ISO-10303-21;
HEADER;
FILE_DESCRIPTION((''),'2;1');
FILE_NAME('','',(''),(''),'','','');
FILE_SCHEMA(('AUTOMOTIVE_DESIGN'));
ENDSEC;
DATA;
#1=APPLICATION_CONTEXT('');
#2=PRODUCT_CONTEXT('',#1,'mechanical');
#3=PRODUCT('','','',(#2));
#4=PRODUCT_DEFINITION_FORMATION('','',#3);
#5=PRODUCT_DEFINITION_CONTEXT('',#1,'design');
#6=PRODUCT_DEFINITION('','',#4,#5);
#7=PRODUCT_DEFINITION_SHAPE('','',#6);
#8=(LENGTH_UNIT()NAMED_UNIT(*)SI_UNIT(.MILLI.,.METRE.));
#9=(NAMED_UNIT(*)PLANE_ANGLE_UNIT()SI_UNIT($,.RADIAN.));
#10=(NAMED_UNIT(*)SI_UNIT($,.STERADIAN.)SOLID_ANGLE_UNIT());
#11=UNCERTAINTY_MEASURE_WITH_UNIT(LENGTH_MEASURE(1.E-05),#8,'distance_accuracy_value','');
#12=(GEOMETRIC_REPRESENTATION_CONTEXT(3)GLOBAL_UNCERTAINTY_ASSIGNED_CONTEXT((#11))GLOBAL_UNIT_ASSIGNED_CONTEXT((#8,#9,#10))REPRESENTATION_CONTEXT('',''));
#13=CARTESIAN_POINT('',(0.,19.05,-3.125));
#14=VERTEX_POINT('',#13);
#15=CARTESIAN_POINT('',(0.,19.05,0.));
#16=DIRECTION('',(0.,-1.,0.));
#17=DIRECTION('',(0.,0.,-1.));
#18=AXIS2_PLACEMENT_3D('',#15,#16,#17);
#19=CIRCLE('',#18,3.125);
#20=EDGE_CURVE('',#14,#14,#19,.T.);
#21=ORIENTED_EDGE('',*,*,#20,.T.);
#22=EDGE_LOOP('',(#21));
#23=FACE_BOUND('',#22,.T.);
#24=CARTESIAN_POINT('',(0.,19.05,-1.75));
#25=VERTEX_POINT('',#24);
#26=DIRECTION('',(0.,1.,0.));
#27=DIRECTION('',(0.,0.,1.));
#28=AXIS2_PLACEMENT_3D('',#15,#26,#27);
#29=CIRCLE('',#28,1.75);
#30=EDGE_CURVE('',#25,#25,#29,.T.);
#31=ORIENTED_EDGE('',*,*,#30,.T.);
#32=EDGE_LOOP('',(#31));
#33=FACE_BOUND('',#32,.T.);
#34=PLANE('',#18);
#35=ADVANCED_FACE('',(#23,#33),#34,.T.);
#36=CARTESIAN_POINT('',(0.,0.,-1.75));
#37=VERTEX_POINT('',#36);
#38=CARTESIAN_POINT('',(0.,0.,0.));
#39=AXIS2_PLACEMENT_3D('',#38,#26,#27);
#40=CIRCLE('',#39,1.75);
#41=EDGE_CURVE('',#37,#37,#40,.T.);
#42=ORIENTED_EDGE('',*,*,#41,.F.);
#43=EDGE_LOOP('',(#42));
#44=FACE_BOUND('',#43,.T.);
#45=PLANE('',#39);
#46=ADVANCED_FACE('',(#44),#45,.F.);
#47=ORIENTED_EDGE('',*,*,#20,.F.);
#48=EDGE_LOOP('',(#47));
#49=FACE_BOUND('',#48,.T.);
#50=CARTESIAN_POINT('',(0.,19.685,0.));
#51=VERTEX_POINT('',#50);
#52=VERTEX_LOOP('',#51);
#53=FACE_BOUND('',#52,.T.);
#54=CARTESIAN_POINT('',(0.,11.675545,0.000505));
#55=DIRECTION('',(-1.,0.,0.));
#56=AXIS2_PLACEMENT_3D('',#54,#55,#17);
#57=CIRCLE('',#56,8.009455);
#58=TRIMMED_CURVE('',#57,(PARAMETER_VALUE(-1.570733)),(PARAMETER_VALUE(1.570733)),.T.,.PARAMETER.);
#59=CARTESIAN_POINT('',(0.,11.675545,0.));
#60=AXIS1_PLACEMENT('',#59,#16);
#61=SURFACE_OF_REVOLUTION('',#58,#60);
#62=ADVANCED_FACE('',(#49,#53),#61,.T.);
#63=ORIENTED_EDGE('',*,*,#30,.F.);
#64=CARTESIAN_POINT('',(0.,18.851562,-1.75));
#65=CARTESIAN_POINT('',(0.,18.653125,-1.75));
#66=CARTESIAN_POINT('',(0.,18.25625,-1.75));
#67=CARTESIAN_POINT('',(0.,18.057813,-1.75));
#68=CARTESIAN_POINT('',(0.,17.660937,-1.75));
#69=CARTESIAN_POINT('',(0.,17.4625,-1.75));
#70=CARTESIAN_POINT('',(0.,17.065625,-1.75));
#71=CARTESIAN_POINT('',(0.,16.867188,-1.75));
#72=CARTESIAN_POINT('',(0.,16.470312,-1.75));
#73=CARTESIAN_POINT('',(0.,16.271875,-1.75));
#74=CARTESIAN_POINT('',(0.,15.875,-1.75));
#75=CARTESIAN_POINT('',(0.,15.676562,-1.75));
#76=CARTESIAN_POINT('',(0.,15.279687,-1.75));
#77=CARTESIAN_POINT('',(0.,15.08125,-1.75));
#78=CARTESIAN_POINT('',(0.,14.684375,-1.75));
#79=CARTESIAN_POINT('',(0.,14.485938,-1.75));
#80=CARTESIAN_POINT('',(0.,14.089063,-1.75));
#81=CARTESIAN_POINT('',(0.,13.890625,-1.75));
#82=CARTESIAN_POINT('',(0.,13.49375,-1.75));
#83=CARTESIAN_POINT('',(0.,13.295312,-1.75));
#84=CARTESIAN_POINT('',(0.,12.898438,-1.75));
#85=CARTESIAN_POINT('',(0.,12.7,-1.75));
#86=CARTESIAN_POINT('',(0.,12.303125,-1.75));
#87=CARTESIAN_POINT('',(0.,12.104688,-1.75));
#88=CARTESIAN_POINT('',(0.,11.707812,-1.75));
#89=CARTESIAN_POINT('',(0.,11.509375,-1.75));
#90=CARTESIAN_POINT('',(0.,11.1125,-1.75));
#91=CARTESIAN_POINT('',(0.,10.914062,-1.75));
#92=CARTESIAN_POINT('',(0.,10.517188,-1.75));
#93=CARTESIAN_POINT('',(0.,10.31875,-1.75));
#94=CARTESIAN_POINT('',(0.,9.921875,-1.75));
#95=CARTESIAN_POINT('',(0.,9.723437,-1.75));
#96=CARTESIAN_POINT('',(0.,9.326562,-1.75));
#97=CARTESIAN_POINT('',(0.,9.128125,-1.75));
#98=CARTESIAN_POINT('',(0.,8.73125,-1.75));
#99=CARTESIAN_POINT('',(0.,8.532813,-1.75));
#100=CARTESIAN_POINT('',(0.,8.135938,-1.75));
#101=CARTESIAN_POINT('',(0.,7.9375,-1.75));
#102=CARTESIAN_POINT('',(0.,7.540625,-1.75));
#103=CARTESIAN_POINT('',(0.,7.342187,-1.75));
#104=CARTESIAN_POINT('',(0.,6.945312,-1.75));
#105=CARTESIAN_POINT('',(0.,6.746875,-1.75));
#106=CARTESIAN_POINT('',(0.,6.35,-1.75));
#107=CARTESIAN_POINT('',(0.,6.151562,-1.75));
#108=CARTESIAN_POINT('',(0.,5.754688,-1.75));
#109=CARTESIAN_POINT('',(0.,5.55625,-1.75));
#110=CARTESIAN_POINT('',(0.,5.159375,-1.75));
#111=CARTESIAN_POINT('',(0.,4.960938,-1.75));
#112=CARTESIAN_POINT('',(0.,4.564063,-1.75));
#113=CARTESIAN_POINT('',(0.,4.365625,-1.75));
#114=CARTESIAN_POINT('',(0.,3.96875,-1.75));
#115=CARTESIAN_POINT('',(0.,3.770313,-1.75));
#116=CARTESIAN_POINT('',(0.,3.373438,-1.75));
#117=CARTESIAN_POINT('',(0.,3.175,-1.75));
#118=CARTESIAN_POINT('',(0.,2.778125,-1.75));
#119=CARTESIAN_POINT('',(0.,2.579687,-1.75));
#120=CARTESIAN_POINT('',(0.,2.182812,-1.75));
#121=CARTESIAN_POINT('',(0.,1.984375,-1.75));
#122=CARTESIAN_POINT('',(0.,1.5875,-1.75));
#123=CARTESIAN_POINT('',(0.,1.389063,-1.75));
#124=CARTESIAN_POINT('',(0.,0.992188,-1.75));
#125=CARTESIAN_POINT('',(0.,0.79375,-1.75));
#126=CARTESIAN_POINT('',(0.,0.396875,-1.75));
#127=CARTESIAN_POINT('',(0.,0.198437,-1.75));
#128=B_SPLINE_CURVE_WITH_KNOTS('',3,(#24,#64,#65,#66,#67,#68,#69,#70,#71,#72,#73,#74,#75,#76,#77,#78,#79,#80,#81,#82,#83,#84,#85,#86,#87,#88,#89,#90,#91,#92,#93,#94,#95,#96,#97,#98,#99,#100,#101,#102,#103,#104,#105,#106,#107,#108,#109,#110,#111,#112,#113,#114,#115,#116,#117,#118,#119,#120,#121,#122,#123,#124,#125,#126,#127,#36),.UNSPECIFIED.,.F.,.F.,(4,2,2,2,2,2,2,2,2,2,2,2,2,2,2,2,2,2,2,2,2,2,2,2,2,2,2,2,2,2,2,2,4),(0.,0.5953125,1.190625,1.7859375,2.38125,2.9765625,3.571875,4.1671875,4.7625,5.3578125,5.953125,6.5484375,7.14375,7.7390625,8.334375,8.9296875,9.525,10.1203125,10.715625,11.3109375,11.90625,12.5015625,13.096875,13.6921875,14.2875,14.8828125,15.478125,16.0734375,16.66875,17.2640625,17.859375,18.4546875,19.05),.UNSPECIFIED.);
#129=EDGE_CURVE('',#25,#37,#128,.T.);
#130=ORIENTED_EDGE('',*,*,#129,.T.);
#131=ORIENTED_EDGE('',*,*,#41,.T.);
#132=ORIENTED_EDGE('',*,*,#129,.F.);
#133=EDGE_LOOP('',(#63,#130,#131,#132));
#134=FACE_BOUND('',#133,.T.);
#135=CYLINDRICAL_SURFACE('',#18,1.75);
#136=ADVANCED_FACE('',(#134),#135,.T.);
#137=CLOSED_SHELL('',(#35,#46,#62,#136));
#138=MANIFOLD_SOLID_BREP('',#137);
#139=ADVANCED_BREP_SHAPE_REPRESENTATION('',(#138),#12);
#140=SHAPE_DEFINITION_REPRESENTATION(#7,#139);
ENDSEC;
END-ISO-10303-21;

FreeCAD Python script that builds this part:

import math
import FreeCAD as App
import Part
import Sketcher

V = App.Vector
Q = App.Units.Quantity

doc = App.newDocument("Part")
body = doc.addObject("PartDesign::Body", "Body")

sketch1 = body.newObject("Sketcher::SketchObject", "Sketch")
sketch1.AttachmentSupport = (doc.getObject("XZ_Plane"), [""])
sketch1.MapMode = "FlatFace"
sketch1.addGeometry(Part.Circle(V(0, 0, 0), V(0, 0, 1), 1.8), False)
sketch1.addConstraint(Sketcher.Constraint("Coincident", 0, 3, -1, 1))
sketch1.addConstraint(Sketcher.Constraint("Diameter", 0, Q("3.5 mm")))
pad1 = body.newObject("PartDesign::Pad", "Pad")
pad1.Profile = sketch1
pad1.Length = Q("0.75 in")
pad1.Reversed = True

sketch2 = body.newObject("Sketcher::SketchObject", "Sketch001")
sketch2.AttachmentSupport = (doc.getObject("XY_Plane"), [""])
sketch2.MapMode = "FlatFace"
sketch2.addGeometry(Part.LineSegment(V(0, 19.7, 0), V(0, 19.1, 0)), False)
sketch2.addGeometry(Part.LineSegment(V(0, 19.1, 0), V(3.1, 19.1, 0)), False)
sketch2.addGeometry(Part.ArcOfCircle(Part.Circle(V(0, 11.7, 0), V(0, 0, 1), 8), math.radians(67), math.radians(90)), False)
sketch2.addConstraint(Sketcher.Constraint("Coincident", 0, 2, 1, 1))
sketch2.addConstraint(Sketcher.Constraint("Coincident", 1, 2, 2, 1))
sketch2.addConstraint(Sketcher.Constraint("Coincident", 2, 2, 0, 1))
sketch2.addConstraint(Sketcher.Constraint("Vertical", 0))
sketch2.addConstraint(Sketcher.Constraint("Horizontal", 1))
sketch2.addConstraint(Sketcher.Constraint("PointOnObject", 0, 2, -2))
sketch2.addConstraint(Sketcher.Constraint("DistanceY", 0, 2, 0, 1, Q("0.025 in")))
sketch2.addConstraint(Sketcher.Constraint("DistanceY", -1, 1, 0, 2, Q("0.75 in")))
sketch2.addConstraint(Sketcher.Constraint("DistanceX", 1, 1, 1, 2, Q("3.125 mm")))
sketch2.addConstraint(Sketcher.Constraint("Radius", 2, Q("8.009455 mm")))
revolution = body.newObject("PartDesign::Revolution", "Revolution")
revolution.Profile = sketch2
revolution.ReferenceAxis = (sketch2, ["V_Axis"])
revolution.Angle = 360

doc.recompute()
